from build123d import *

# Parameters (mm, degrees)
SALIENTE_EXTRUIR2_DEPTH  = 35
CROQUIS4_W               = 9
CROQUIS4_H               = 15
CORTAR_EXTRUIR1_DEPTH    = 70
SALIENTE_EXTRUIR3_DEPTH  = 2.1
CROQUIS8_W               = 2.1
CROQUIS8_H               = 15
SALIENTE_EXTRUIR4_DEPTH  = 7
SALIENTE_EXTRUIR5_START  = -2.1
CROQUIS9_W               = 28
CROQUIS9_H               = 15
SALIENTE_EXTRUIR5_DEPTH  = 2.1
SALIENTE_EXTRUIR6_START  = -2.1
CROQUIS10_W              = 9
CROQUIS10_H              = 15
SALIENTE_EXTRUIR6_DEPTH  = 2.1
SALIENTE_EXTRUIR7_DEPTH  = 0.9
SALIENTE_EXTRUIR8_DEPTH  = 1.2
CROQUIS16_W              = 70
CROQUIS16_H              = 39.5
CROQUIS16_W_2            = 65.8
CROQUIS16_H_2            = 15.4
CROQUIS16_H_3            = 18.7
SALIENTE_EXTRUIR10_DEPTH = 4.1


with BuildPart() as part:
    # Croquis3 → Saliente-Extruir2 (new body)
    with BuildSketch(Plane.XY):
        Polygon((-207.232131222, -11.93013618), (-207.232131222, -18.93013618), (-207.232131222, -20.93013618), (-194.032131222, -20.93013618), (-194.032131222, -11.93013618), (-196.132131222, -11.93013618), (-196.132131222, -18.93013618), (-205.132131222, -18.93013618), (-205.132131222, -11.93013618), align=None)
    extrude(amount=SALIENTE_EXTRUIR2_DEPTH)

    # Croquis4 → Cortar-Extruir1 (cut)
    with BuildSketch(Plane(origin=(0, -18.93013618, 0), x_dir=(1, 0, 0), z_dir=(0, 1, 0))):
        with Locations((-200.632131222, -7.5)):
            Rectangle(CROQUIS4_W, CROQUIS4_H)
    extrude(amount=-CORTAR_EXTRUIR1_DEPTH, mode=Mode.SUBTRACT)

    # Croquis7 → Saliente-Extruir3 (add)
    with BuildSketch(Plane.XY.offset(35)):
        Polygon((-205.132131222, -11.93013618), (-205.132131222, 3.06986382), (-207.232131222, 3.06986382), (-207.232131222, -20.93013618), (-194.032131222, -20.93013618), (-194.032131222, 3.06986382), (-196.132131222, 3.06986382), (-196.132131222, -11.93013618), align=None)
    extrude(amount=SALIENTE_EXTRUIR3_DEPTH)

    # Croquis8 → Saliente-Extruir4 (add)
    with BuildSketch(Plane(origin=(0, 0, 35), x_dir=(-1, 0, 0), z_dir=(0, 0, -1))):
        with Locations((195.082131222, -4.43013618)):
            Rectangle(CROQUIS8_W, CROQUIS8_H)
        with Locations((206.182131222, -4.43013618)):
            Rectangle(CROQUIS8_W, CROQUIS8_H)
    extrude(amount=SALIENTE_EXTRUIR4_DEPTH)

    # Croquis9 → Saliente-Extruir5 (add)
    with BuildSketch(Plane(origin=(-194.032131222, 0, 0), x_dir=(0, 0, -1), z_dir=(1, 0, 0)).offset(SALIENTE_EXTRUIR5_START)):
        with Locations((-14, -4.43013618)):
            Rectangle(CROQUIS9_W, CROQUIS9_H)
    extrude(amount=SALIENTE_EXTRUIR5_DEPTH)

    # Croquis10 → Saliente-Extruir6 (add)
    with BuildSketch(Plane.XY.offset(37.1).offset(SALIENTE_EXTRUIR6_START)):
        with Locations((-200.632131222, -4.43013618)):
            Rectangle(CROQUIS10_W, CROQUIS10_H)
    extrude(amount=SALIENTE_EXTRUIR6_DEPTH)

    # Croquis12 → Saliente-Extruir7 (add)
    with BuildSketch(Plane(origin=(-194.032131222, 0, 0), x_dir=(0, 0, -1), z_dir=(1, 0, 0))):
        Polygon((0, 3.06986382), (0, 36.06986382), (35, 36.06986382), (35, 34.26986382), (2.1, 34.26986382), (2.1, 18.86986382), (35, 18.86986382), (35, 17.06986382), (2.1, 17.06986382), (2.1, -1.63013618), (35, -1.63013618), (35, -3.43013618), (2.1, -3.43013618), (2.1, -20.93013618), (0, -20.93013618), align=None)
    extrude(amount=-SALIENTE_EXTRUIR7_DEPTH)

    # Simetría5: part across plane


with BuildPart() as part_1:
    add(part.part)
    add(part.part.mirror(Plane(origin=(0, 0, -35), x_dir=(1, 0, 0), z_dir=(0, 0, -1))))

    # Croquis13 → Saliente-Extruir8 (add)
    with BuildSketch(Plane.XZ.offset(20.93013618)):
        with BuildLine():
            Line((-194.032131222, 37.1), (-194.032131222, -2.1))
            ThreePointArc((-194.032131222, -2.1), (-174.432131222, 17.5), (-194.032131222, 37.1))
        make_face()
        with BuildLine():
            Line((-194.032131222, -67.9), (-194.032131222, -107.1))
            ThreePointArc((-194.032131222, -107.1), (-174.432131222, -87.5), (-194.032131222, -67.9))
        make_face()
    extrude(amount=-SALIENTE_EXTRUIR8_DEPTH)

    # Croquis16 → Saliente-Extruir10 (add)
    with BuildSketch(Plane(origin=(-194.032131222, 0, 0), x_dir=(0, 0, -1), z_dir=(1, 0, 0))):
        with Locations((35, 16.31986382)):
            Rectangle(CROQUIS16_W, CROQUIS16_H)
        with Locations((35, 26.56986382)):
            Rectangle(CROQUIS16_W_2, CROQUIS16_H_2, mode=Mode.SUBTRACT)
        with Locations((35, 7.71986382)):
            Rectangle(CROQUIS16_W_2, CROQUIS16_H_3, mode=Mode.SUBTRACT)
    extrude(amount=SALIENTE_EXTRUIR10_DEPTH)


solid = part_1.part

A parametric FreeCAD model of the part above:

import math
import FreeCAD as App
import Part
import Sketcher
Q = App.Units.Quantity


def add_polygon(sketch, points):
    """Adds a closed chain of lines whose ends are joined by coincident constraints."""
    first, n = sketch.GeometryCount, len(points)
    for a, b in zip(points, points[1:] + points[:1]):
        sketch.addGeometry(Part.LineSegment(App.Vector(*a, 0), App.Vector(*b, 0)), False)
    for i in range(n):
        sketch.addConstraint(Sketcher.Constraint("Coincident", first + i, 2, first + (i + 1) % n, 1))

doc = App.newDocument("Part")
body = doc.addObject("PartDesign::Body", "Body")

# Sketch on XY plane
sketch1 = body.newObject("Sketcher::SketchObject", "Sketch")
sketch1.AttachmentSupport = (doc.getObject("XY_Plane"), [""])
sketch1.MapMode = "FlatFace"
add_polygon(sketch1, [(-207.2, -11.9), (-207.2, -20.9), (-194, -20.9), (-194, -11.9), (-196.1, -11.9), (-196.1, -18.9), (-205.1, -18.9), (-205.1, -11.9)])  # lines 0-7
sketch1.addConstraint(Sketcher.Constraint("Vertical", 0))
sketch1.addConstraint(Sketcher.Constraint("Horizontal", 1))
sketch1.addConstraint(Sketcher.Constraint("Vertical", 2))
sketch1.addConstraint(Sketcher.Constraint("Horizontal", 3))
sketch1.addConstraint(Sketcher.Constraint("Vertical", 4))
sketch1.addConstraint(Sketcher.Constraint("Horizontal", 5))
sketch1.addConstraint(Sketcher.Constraint("Vertical", 6))
sketch1.addConstraint(Sketcher.Constraint("Horizontal", 7))
sketch1.addConstraint(Sketcher.Constraint("Horizontal", 3, 2, 6, 2))
sketch1.addConstraint(Sketcher.Constraint("Equal", 3, 7))
sketch1.addConstraint(Sketcher.Constraint("Equal", 5, 0))
sketch1.addConstraint(Sketcher.Constraint("DistanceX", 5, 2, 5, 1, Q("9 mm")))
sketch1.addConstraint(Sketcher.Constraint("DistanceY", 4, 2, 4, 1, Q("7 mm")))
sketch1.addConstraint(Sketcher.Constraint("DistanceX", 1, 1, 1, 2, Q("13.2 mm")))
sketch1.addConstraint(Sketcher.Constraint("DistanceX", 0, 2, -1, 1, Q("207.232131 mm")))
sketch1.addConstraint(Sketcher.Constraint("DistanceY", 0, 2, -1, 1, Q("20.930136 mm")))
pad1 = body.newObject("PartDesign::Pad", "Pad")
pad1.Profile = sketch1
pad1.Length = 35

# Sketch on XZ plane
sketch2 = body.newObject("Sketcher::SketchObject", "Sketch001")
sketch2.AttachmentSupport = (doc.getObject("XZ_Plane"), [""])
sketch2.MapMode = "FlatFace"
sketch2.AttachmentOffset = App.Placement(App.Vector(0, 0, 18.930136), App.Rotation())
add_polygon(sketch2, [(-205, 0), (-205, 15), (-196, 15), (-196, 0)])  # lines 0-3
sketch2.addConstraint(Sketcher.Constraint("Vertical", 0))
sketch2.addConstraint(Sketcher.Constraint("Horizontal", 1))
sketch2.addConstraint(Sketcher.Constraint("Vertical", 2))
sketch2.addConstraint(Sketcher.Constraint("Horizontal", 3))
sketch2.addConstraint(Sketcher.Constraint("PointOnObject", 2, 2, -1))
sketch2.addConstraint(Sketcher.Constraint("DistanceX", 1, 1, 1, 2, Q("9 mm")))
sketch2.addConstraint(Sketcher.Constraint("DistanceY", 0, 1, 0, 2, Q("15 mm")))
sketch2.addConstraint(Sketcher.Constraint("DistanceX", 0, 2, -1, 1, Q("205.132131 mm")))
pocket1 = body.newObject("PartDesign::Pocket", "Pocket")
pocket1.Profile = sketch2
pocket1.Length = 70
pocket1.Reversed = True

# Sketch on XY plane
sketch3 = body.newObject("Sketcher::SketchObject", "Sketch002")
sketch3.AttachmentSupport = (doc.getObject("XY_Plane"), [""])
sketch3.MapMode = "FlatFace"
sketch3.AttachmentOffset = App.Placement(App.Vector(0, 0, 35), App.Rotation())
add_polygon(sketch3, [(-205.1, -11.9), (-205.1, 3.1), (-207.2, 3.1), (-207.2, -20.9), (-194, -20.9), (-194, 3.1), (-196.1, 3.1), (-196.1, -11.9)])  # lines 0-7
sketch3.addConstraint(Sketcher.Constraint("Vertical", 0))
sketch3.addConstraint(Sketcher.Constraint("Horizontal", 1))
sketch3.addConstraint(Sketcher.Constraint("Vertical", 2))
sketch3.addConstraint(Sketcher.Constraint("Horizontal", 3))
sketch3.addConstraint(Sketcher.Constraint("Vertical", 4))
sketch3.addConstraint(Sketcher.Constraint("Horizontal", 5))
sketch3.addConstraint(Sketcher.Constraint("Vertical", 6))
sketch3.addConstraint(Sketcher.Constraint("Horizontal", 7))
sketch3.addConstraint(Sketcher.Constraint("Horizontal", 1, 2, 4, 2))
sketch3.addConstraint(Sketcher.Constraint("Equal", 1, 5))
sketch3.addConstraint(Sketcher.Constraint("DistanceX", 7, 2, 7, 1, Q("9 mm")))
sketch3.addConstraint(Sketcher.Constraint("DistanceY", 0, 1, 0, 2, Q("15 mm")))
sketch3.addConstraint(Sketcher.Constraint("DistanceY", 2, 2, 2, 1, Q("24 mm")))
sketch3.addConstraint(Sketcher.Constraint("DistanceX", 1, 2, 1, 1, Q("2.1 mm")))
sketch3.addConstraint(Sketcher.Constraint("DistanceX", 0, 2, -1, 1, Q("205.132131 mm")))
sketch3.addConstraint(Sketcher.Constraint("DistanceY", -1, 1, 0, 2, Q("3.069864 mm")))
pad2 = body.newObject("PartDesign::Pad", "Pad001")
pad2.Profile = sketch3
pad2.Length = 2.1

# Sketch on XY plane
sketch4 = body.newObject("Sketcher::SketchObject", "Sketch003")
sketch4.AttachmentSupport = (doc.getObject("XY_Plane"), [""])
sketch4.MapMode = "FlatFace"
sketch4.AttachmentOffset = App.Placement(App.Vector(0, 0, 35), App.Rotation())
add_polygon(sketch4, [(-194, 3.1), (-194, -11.9), (-196.1, -11.9), (-196.1, 3.1)])  # lines 0-3
add_polygon(sketch4, [(-205.1, 3.1), (-205.1, -11.9), (-207.2, -11.9), (-207.2, 3.1)])  # lines 4-7
sketch4.addConstraint(Sketcher.Constraint("Vertical", 0))
sketch4.addConstraint(Sketcher.Constraint("Horizontal", 1))
sketch4.addConstraint(Sketcher.Constraint("Vertical", 2))
sketch4.addConstraint(Sketcher.Constraint("Horizontal", 3))
sketch4.addConstraint(Sketcher.Constraint("Vertical", 4))
sketch4.addConstraint(Sketcher.Constraint("Horizontal", 5))
sketch4.addConstraint(Sketcher.Constraint("Vertical", 6))
sketch4.addConstraint(Sketcher.Constraint("Horizontal", 7))
sketch4.addConstraint(Sketcher.Constraint("Horizontal", 1, 2, 4, 2))
sketch4.addConstraint(Sketcher.Constraint("Horizontal", 3, 2, 6, 2))
sketch4.addConstraint(Sketcher.Constraint("Equal", 3, 5))
sketch4.addConstraint(Sketcher.Constraint("DistanceY", 0, 2, 0, 1, Q("15 mm")))
sketch4.addConstraint(Sketcher.Constraint("DistanceX", 1, 2, 1, 1, Q("2.1 mm")))
sketch4.addConstraint(Sketcher.Constraint("DistanceX", 4, 2, 1, 2, Q("9 mm")))
sketch4.addConstraint(Sketcher.Constraint("DistanceX", 0, 2, -1, 1, Q("194.032131 mm")))
sketch4.addConstraint(Sketcher.Constraint("DistanceY", 0, 2, -1, 1, Q("11.930136 mm")))
pad3 = body.newObject("PartDesign::Pad", "Pad002")
pad3.Profile = sketch4
pad3.Length = 7
pad3.Reversed = True

# Sketch on YZ plane
sketch5 = body.newObject("Sketcher::SketchObject", "Sketch004")
sketch5.AttachmentSupport = (doc.getObject("YZ_Plane"), [""])
sketch5.MapMode = "FlatFace"
sketch5.AttachmentOffset = App.Placement(App.Vector(0, 0, -196.132131), App.Rotation())
add_polygon(sketch5, [(3, 28), (-12, 28), (-12, 0), (3, 0)])  # lines 0-3
sketch5.addConstraint(Sketcher.Constraint("Horizontal", 0))
sketch5.addConstraint(Sketcher.Constraint("Vertical", 1))
sketch5.addConstraint(Sketcher.Constraint("Horizontal", 2))
sketch5.addConstraint(Sketcher.Constraint("Vertical", 3))
sketch5.addConstraint(Sketcher.Constraint("PointOnObject", 1, 2, -1))
sketch5.addConstraint(Sketcher.Constraint("DistanceX", 0, 2, 0, 1, Q("15 mm")))
sketch5.addConstraint(Sketcher.Constraint("DistanceY", 1, 2, 1, 1, Q("28 mm")))
sketch5.addConstraint(Sketcher.Constraint("DistanceX", 0, 2, -1, 1, Q("11.930136 mm")))
pad4 = body.newObject("PartDesign::Pad", "Pad003")
pad4.Profile = sketch5
pad4.Length = 2.1

# Sketch on XY plane
sketch6 = body.newObject("Sketcher::SketchObject", "Sketch005")
sketch6.AttachmentSupport = (doc.getObject("XY_Plane"), [""])
sketch6.MapMode = "FlatFace"
sketch6.AttachmentOffset = App.Placement(App.Vector(0, 0, 35), App.Rotation())
add_polygon(sketch6, [(-205, 3), (-205, -12), (-196, -12), (-196, 3)])  # lines 0-3
sketch6.addConstraint(Sketcher.Constraint("Vertical", 0))
sketch6.addConstraint(Sketcher.Constraint("Horizontal", 1))
sketch6.addConstraint(Sketcher.Constraint("Vertical", 2))
sketch6.addConstraint(Sketcher.Constraint("Horizontal", 3))
sketch6.addConstraint(Sketcher.Constraint("DistanceX", 1, 1, 1, 2, Q("9 mm")))
sketch6.addConstraint(Sketcher.Constraint("DistanceY", 0, 2, 0, 1, Q("15 mm")))
sketch6.addConstraint(Sketcher.Constraint("DistanceX", 0, 2, -1, 1, Q("205.132131 mm")))
sketch6.addConstraint(Sketcher.Constraint("DistanceY", 0, 2, -1, 1, Q("11.930136 mm")))
pad5 = body.newObject("PartDesign::Pad", "Pad004")
pad5.Profile = sketch6
pad5.Length = 2.1

# Sketch on YZ plane
sketch7 = body.newObject("Sketcher::SketchObject", "Sketch006")
sketch7.AttachmentSupport = (doc.getObject("YZ_Plane"), [""])
sketch7.MapMode = "FlatFace"
sketch7.AttachmentOffset = App.Placement(App.Vector(0, 0, -194.032131), App.Rotation())
add_polygon(sketch7, [(36.1, 0), (-20.9, 0), (-20.9, -2.1), (-3.4, -2.1), (-3.4, -35), (-1.6, -35), (-1.6, -2.1), (17.1, -2.1), (17.1, -35), (18.9, -35), (18.9, -2.1), (34.3, -2.1), (34.3, -35), (36.1, -35)])  # lines 0-13
sketch7.addConstraint(Sketcher.Constraint("Horizontal", 0))
sketch7.addConstraint(Sketcher.Constraint("Vertical", 1))
sketch7.addConstraint(Sketcher.Constraint("Horizontal", 2))
sketch7.addConstraint(Sketcher.Constraint("Vertical", 3))
sketch7.addConstraint(Sketcher.Constraint("Horizontal", 4))
sketch7.addConstraint(Sketcher.Constraint("Vertical", 5))
sketch7.addConstraint(Sketcher.Constraint("Horizontal", 6))
sketch7.addConstraint(Sketcher.Constraint("Vertical", 7))
sketch7.addConstraint(Sketcher.Constraint("Horizontal", 8))
sketch7.addConstraint(Sketcher.Constraint("Vertical", 9))
sketch7.addConstraint(Sketcher.Constraint("Horizontal", 10))
sketch7.addConstraint(Sketcher.Constraint("Vertical", 11))
sketch7.addConstraint(Sketcher.Constraint("Horizontal", 12))
sketch7.addConstraint(Sketcher.Constraint("Vertical", 13))
sketch7.addConstraint(Sketcher.Constraint("PointOnObject", 0, 2, -1))
sketch7.addConstraint(Sketcher.Constraint("Horizontal", 2, 2, 5, 2))
sketch7.addConstraint(Sketcher.Constraint("Horizontal", 4, 2, 7, 2))
sketch7.addConstraint(Sketcher.Constraint("Horizontal", 6, 2, 9, 2))
sketch7.addConstraint(Sketcher.Constraint("Horizontal", 8, 2, 11, 2))
sketch7.addConstraint(Sketcher.Constraint("Equal", 4, 8))
sketch7.addConstraint(Sketcher.Constraint("Equal", 8, 12))
sketch7.addConstraint(Sketcher.Constraint("DistanceX", 0, 2, 0, 1, Q("57 mm")))
sketch7.addConstraint(Sketcher.Constraint("DistanceY", 13, 1, 13, 2, Q("35 mm")))
sketch7.addConstraint(Sketcher.Constraint("DistanceX", 2, 1, 2, 2, Q("17.5 mm")))
sketch7.addConstraint(Sketcher.Constraint("DistanceX", 4, 1, 4, 2, Q("1.8 mm")))
sketch7.addConstraint(Sketcher.Constraint("DistanceX", 6, 1, 6, 2, Q("18.7 mm")))
sketch7.addConstraint(Sketcher.Constraint("DistanceY", 1, 2, 1, 1, Q("2.1 mm")))
sketch7.addConstraint(Sketcher.Constraint("DistanceX", 0, 2, -1, 1, Q("20.930136 mm")))
pad6 = body.newObject("PartDesign::Pad", "Pad005")
pad6.Profile = sketch7
pad6.Length = 0.9
pad6.Reversed = True
body2 = doc.addObject("PartDesign::Body", "Body001")
doc.recompute()

body2.BaseFeature = body
doc.recompute()

mirroring = doc.addObject("Part::Mirroring", "Mirroring")
mirroring.Source = body
mirroring.Base = App.Vector(0, 0, -35)
mirroring.Normal = App.Vector(0, 0, -1)
body3 = doc.addObject("PartDesign::Body", "Body002")
body3.BaseFeature = mirroring
boolean = body2.newObject("PartDesign::Boolean", "Boolean")
boolean.Type = "Fuse"
boolean.addObjects([body3])
doc.recompute()

# Sketch on XZ plane
sketch8 = body2.newObject("Sketcher::SketchObject", "Sketch007")
sketch8.AttachmentSupport = (doc.getObject("XZ_Plane001"), [""])
sketch8.MapMode = "FlatFace"
sketch8.AttachmentOffset = App.Placement(App.Vector(0, 0, 20.930136), App.Rotation())
sketch8.addGeometry(Part.LineSegment(App.Vector(-194, 37, 0), App.Vector(-194, -2, 0)), False)
sketch8.addGeometry(Part.ArcOfCircle(Part.Circle(App.Vector(-194, 18, 0), App.Vector(0, 0, 1), 20), math.radians(-90), math.radians(90)), False)
sketch8.addGeometry(Part.LineSegment(App.Vector(-194, -68, 0), App.Vector(-194, -107, 0)), False)
sketch8.addGeometry(Part.ArcOfCircle(Part.Circle(App.Vector(-194, -88, 0), App.Vector(0, 0, 1), 20), math.radians(-90), math.radians(90)), False)
sketch8.addConstraint(Sketcher.Constraint("Coincident", 0, 1, 1, 2))
sketch8.addConstraint(Sketcher.Constraint("Coincident", 1, 1, 0, 2))
sketch8.addConstraint(Sketcher.Constraint("Coincident", 2, 1, 3, 2))
sketch8.addConstraint(Sketcher.Constraint("Coincident", 3, 1, 2, 2))
sketch8.addConstraint(Sketcher.Constraint("Vertical", 0))
sketch8.addConstraint(Sketcher.Constraint("Vertical", 2))
sketch8.addConstraint(Sketcher.Constraint("Equal", 1, 3))
sketch8.addConstraint(Sketcher.Constraint("Vertical", 1, 3, 3, 3))
sketch8.addConstraint(Sketcher.Constraint("Vertical", 3, 3, 0, 1))
sketch8.addConstraint(Sketcher.Constraint("Vertical", 1, 1, 2, 1))
sketch8.addConstraint(Sketcher.Constraint("Radius", 1, Q("19.6 mm")))
sketch8.addConstraint(Sketcher.Constraint("DistanceY", 3, 3, 1, 3, Q("105 mm")))
sketch8.addConstraint(Sketcher.Constraint("DistanceY", -1, 1, 1, 3, Q("17.5 mm")))
sketch8.addConstraint(Sketcher.Constraint("DistanceX", 1, 3, -1, 1, Q("194.032131 mm")))
pad7 = body2.newObject("PartDesign::Pad", "Pad006")
pad7.Profile = sketch8
pad7.Length = 1.2
pad7.Reversed = True

# Sketch on YZ plane
sketch9 = body2.newObject("Sketcher::SketchObject", "Sketch008")
sketch9.AttachmentSupport = (doc.getObject("YZ_Plane001"), [""])
sketch9.MapMode = "FlatFace"
sketch9.AttachmentOffset = App.Placement(App.Vector(0, 0, -194.032131), App.Rotation())
add_polygon(sketch9, [(36, 0), (-3, 0), (-3, -70), (36, -70)])  # lines 0-3
add_polygon(sketch9, [(-2, -68), (-2, -2), (17, -2), (17, -68)])  # lines 4-7
add_polygon(sketch9, [(19, -68), (19, -2), (34, -2), (34, -68)])  # lines 8-11
sketch9.addConstraint(Sketcher.Constraint("Horizontal", 0))
sketch9.addConstraint(Sketcher.Constraint("Vertical", 1))
sketch9.addConstraint(Sketcher.Constraint("Horizontal", 2))
sketch9.addConstraint(Sketcher.Constraint("Vertical", 3))
sketch9.addConstraint(Sketcher.Constraint("Vertical", 4))
sketch9.addConstraint(Sketcher.Constraint("Horizontal", 5))
sketch9.addConstraint(Sketcher.Constraint("Vertical", 6))
sketch9.addConstraint(Sketcher.Constraint("Horizontal", 7))
sketch9.addConstraint(Sketcher.Constraint("Vertical", 8))
sketch9.addConstraint(Sketcher.Constraint("Horizontal", 9))
sketch9.addConstraint(Sketcher.Constraint("Vertical", 10))
sketch9.addConstraint(Sketcher.Constraint("Horizontal", 11))
sketch9.addConstraint(Sketcher.Constraint("PointOnObject", 0, 2, -1))
sketch9.addConstraint(Sketcher.Constraint("Horizontal", 5, 2, 8, 2))
sketch9.addConstraint(Sketcher.Constraint("Horizontal", 7, 2, 10, 2))
sketch9.addConstraint(Sketcher.Constraint("DistanceY", 1, 2, 1, 1, Q("70 mm")))
sketch9.addConstraint(Sketcher.Constraint("DistanceX", 0, 2, 0, 1, Q("39.5 mm")))
sketch9.addConstraint(Sketcher.Constraint("DistanceX", 5, 1, 5, 2, Q("18.7 mm")))
sketch9.addConstraint(Sketcher.Constraint("DistanceX", 9, 1, 9, 2, Q("15.4 mm")))
sketch9.addConstraint(Sketcher.Constraint("DistanceY", 4, 1, 4, 2, Q("65.8 mm")))
sketch9.addConstraint(Sketcher.Constraint("DistanceX", 5, 2, 3, 2, Q("19 mm")))
sketch9.addConstraint(Sketcher.Constraint("DistanceY", 4, 2, -1, 1, Q("2.1 mm")))
sketch9.addConstraint(Sketcher.Constraint("DistanceX", 5, 2, 8, 2, Q("1.8 mm")))
sketch9.addConstraint(Sketcher.Constraint("DistanceX", 0, 2, -1, 1, Q("3.430136 mm")))
pad8 = body2.newObject("PartDesign::Pad", "Pad007")
pad8.Profile = sketch9
pad8.Length = 4.1
mirroring.Visibility = False

doc.recompute()
